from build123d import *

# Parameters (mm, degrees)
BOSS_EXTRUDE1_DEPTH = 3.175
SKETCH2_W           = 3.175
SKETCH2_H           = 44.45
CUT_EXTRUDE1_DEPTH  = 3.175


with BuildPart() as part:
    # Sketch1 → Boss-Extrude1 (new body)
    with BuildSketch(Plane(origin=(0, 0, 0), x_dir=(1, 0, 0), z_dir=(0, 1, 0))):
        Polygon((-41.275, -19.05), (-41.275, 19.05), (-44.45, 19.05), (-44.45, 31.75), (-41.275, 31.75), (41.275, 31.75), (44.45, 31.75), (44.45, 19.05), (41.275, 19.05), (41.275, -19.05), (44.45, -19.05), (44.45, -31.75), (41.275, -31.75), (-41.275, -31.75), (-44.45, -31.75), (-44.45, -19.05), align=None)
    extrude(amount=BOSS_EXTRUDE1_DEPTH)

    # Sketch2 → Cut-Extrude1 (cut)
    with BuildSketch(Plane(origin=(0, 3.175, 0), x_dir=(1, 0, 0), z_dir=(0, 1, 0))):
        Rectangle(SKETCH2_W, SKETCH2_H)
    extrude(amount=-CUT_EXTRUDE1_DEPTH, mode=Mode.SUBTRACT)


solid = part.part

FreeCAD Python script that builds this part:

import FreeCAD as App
import Part
import Sketcher
from FreeCAD import Vector
Q = App.Units.Quantity

doc = App.newDocument("Part")
body = doc.addObject("PartDesign::Body", "Body")

sketch1 = body.newObject("Sketcher::SketchObject", "Sketch")
sketch1.AttachmentSupport = (doc.getObject("XZ_Plane"), [""])
sketch1.MapMode = "FlatFace"
sketch1.addGeometry(Part.LineSegment(Vector(-41.3, -19.1, 0), Vector(-41.3, 19.1, 0)), False)
sketch1.addGeometry(Part.LineSegment(Vector(-41.3, 19.1, 0), Vector(-44.5, 19.1, 0)), False)
sketch1.addGeometry(Part.LineSegment(Vector(-44.5, 19.1, 0), Vector(-44.5, 31.8, 0)), False)
sketch1.addGeometry(Part.LineSegment(Vector(-44.5, 31.8, 0), Vector(44.5, 31.8, 0)), False)
sketch1.addGeometry(Part.LineSegment(Vector(44.5, 31.8, 0), Vector(44.5, 19.1, 0)), False)
sketch1.addGeometry(Part.LineSegment(Vector(44.5, 19.1, 0), Vector(41.3, 19.1, 0)), False)
sketch1.addGeometry(Part.LineSegment(Vector(41.3, 19.1, 0), Vector(41.3, -19.1, 0)), False)
sketch1.addGeometry(Part.LineSegment(Vector(41.3, -19.1, 0), Vector(44.5, -19.1, 0)), False)
sketch1.addGeometry(Part.LineSegment(Vector(44.5, -19.1, 0), Vector(44.5, -31.8, 0)), False)
sketch1.addGeometry(Part.LineSegment(Vector(44.5, -31.8, 0), Vector(-44.5, -31.8, 0)), False)
sketch1.addGeometry(Part.LineSegment(Vector(-44.5, -31.8, 0), Vector(-44.5, -19.1, 0)), False)
sketch1.addGeometry(Part.LineSegment(Vector(-44.5, -19.1, 0), Vector(-41.3, -19.1, 0)), False)
sketch1.addConstraint(Sketcher.Constraint("Coincident", 0, 2, 1, 1))
sketch1.addConstraint(Sketcher.Constraint("Coincident", 1, 2, 2, 1))
sketch1.addConstraint(Sketcher.Constraint("Coincident", 2, 2, 3, 1))
sketch1.addConstraint(Sketcher.Constraint("Coincident", 3, 2, 4, 1))
sketch1.addConstraint(Sketcher.Constraint("Coincident", 4, 2, 5, 1))
sketch1.addConstraint(Sketcher.Constraint("Coincident", 5, 2, 6, 1))
sketch1.addConstraint(Sketcher.Constraint("Coincident", 6, 2, 7, 1))
sketch1.addConstraint(Sketcher.Constraint("Coincident", 7, 2, 8, 1))
sketch1.addConstraint(Sketcher.Constraint("Coincident", 8, 2, 9, 1))
sketch1.addConstraint(Sketcher.Constraint("Coincident", 9, 2, 10, 1))
sketch1.addConstraint(Sketcher.Constraint("Coincident", 10, 2, 11, 1))
sketch1.addConstraint(Sketcher.Constraint("Coincident", 11, 2, 0, 1))
sketch1.addConstraint(Sketcher.Constraint("Vertical", 0))
sketch1.addConstraint(Sketcher.Constraint("Horizontal", 1))
sketch1.addConstraint(Sketcher.Constraint("Vertical", 2))
sketch1.addConstraint(Sketcher.Constraint("Horizontal", 3))
sketch1.addConstraint(Sketcher.Constraint("Vertical", 4))
sketch1.addConstraint(Sketcher.Constraint("Horizontal", 5))
sketch1.addConstraint(Sketcher.Constraint("Vertical", 6))
sketch1.addConstraint(Sketcher.Constraint("Horizontal", 7))
sketch1.addConstraint(Sketcher.Constraint("Vertical", 8))
sketch1.addConstraint(Sketcher.Constraint("Horizontal", 9))
sketch1.addConstraint(Sketcher.Constraint("Vertical", 10))
sketch1.addConstraint(Sketcher.Constraint("Horizontal", 11))
sketch1.addConstraint(Sketcher.Constraint("Symmetric", 0, 2, 6, 2, -1, 1))
sketch1.addConstraint(Sketcher.Constraint("Symmetric", 2, 2, 8, 2, -1, 1))
sketch1.addConstraint(Sketcher.Constraint("Symmetric", 4, 2, 10, 2, -1, 1))
sketch1.addConstraint(Sketcher.Constraint("Symmetric", 1, 2, 4, 2, -2))
sketch1.addConstraint(Sketcher.Constraint("DistanceX", 3, 1, 3, 2, Q("3.5 in")))
sketch1.addConstraint(Sketcher.Constraint("DistanceY", 0, 1, 0, 2, Q("1.5 in")))
sketch1.addConstraint(Sketcher.Constraint("DistanceY", 2, 1, 2, 2, Q("0.5 in")))
sketch1.addConstraint(Sketcher.Constraint("DistanceX", 1, 2, 1, 1, Q("0.125 in")))
pad1 = body.newObject("PartDesign::Pad", "Pad")
pad1.Profile = sketch1
pad1.Length = Q("0.125 in")
pad1.Reversed = True

sketch2 = body.newObject("Sketcher::SketchObject", "Sketch001")
sketch2.AttachmentSupport = (doc.getObject("XZ_Plane"), [""])
sketch2.MapMode = "FlatFace"
sketch2.AttachmentOffset = App.Placement(Vector(0, 0, -0.125 * 25.4), App.Rotation())
sketch2.addGeometry(Part.LineSegment(Vector(-1.6, -22.2, 0), Vector(-1.6, 22.2, 0)), False)
sketch2.addGeometry(Part.LineSegment(Vector(-1.6, 22.2, 0), Vector(1.6, 22.2, 0)), False)
sketch2.addGeometry(Part.LineSegment(Vector(1.6, 22.2, 0), Vector(1.6, -22.2, 0)), False)
sketch2.addGeometry(Part.LineSegment(Vector(1.6, -22.2, 0), Vector(-1.6, -22.2, 0)), False)
sketch2.addConstraint(Sketcher.Constraint("Coincident", 0, 2, 1, 1))
sketch2.addConstraint(Sketcher.Constraint("Coincident", 1, 2, 2, 1))
sketch2.addConstraint(Sketcher.Constraint("Coincident", 2, 2, 3, 1))
sketch2.addConstraint(Sketcher.Constraint("Coincident", 3, 2, 0, 1))
sketch2.addConstraint(Sketcher.Constraint("Vertical", 0))
sketch2.addConstraint(Sketcher.Constraint("Horizontal", 1))
sketch2.addConstraint(Sketcher.Constraint("Vertical", 2))
sketch2.addConstraint(Sketcher.Constraint("Horizontal", 3))
sketch2.addConstraint(Sketcher.Constraint("Symmetric", 0, 2, 2, 2, -1, 1))
sketch2.addConstraint(Sketcher.Constraint("DistanceY", 0, 1, 0, 2, Q("1.75 in")))
sketch2.addConstraint(Sketcher.Constraint("DistanceX", 1, 1, 1, 2, Q("0.125 in")))
pocket1 = body.newObject("PartDesign::Pocket", "Pocket")
pocket1.Profile = sketch2
pocket1.Length = Q("0.125 in")
pocket1.Reversed = True

doc.recompute()
